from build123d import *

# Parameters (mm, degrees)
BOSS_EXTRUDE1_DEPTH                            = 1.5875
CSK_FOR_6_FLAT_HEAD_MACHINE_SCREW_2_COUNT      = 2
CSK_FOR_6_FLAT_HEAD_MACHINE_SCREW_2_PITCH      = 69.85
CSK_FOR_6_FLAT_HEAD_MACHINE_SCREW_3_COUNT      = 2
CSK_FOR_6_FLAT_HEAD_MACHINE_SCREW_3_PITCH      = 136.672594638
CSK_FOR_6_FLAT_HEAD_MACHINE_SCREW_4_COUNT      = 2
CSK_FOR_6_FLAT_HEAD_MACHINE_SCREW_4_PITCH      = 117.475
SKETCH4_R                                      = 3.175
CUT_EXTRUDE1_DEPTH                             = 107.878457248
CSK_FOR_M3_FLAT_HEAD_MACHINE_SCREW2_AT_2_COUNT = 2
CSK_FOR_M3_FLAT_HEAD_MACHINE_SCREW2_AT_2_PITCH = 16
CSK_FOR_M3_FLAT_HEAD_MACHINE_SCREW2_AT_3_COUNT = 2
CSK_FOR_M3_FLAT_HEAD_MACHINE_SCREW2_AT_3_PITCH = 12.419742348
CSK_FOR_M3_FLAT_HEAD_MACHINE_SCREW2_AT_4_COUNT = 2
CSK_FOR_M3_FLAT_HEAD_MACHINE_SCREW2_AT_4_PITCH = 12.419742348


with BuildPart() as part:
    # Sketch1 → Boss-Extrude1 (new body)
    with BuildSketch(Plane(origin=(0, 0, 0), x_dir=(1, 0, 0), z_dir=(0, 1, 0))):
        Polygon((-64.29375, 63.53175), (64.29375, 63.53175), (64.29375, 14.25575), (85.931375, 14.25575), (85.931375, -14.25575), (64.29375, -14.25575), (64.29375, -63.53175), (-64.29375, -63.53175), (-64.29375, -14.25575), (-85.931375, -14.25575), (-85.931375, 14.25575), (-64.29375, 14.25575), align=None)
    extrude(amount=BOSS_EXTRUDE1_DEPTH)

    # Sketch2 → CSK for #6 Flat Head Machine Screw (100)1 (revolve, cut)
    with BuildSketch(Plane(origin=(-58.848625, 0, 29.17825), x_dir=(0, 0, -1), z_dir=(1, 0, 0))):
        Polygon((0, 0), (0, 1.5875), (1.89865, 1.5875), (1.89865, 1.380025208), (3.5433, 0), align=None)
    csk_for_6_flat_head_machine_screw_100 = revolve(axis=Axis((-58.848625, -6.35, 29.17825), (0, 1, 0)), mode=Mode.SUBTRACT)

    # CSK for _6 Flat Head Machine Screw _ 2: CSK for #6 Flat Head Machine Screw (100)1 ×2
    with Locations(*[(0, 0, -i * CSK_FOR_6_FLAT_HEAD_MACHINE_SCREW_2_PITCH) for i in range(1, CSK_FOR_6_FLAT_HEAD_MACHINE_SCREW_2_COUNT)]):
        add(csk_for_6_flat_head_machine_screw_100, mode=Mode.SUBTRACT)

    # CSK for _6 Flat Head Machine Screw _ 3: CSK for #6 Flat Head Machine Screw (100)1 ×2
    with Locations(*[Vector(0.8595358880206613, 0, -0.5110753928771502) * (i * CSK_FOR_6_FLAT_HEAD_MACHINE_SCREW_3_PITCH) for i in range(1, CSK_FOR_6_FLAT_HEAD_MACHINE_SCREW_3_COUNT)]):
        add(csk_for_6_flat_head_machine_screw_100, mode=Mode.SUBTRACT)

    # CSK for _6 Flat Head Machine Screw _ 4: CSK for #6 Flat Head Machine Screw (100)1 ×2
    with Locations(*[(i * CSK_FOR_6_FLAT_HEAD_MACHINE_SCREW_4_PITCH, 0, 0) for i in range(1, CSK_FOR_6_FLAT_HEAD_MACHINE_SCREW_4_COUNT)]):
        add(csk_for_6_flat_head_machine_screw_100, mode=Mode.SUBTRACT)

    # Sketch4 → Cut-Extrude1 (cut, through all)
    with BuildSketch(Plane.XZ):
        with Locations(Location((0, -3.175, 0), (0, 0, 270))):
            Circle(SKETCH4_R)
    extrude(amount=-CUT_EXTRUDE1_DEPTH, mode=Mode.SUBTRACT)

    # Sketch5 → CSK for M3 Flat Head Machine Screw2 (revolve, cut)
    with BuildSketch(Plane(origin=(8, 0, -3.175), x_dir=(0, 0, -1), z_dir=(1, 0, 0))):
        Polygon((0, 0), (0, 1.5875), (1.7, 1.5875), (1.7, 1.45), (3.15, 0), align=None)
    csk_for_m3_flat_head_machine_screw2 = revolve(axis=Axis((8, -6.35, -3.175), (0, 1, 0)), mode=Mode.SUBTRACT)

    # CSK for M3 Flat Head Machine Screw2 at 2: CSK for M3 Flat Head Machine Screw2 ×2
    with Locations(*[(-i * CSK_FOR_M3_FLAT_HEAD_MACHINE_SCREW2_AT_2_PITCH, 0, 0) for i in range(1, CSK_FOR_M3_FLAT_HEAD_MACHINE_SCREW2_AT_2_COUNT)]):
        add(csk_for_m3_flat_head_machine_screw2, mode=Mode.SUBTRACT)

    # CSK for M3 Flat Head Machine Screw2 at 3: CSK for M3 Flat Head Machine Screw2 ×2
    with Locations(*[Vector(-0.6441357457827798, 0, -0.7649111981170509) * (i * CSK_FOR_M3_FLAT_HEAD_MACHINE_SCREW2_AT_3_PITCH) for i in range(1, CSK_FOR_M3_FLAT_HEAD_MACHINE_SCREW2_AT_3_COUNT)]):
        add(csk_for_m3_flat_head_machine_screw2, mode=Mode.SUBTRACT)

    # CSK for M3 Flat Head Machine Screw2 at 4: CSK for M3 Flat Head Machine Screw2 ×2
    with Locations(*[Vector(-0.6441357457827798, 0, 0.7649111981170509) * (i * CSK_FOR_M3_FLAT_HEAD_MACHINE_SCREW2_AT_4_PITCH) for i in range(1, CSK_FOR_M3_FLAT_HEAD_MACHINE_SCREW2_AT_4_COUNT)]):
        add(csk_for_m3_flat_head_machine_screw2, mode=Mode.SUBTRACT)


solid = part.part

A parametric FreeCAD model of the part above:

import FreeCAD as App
import Part
import Sketcher
from FreeCAD import Vector
Q = App.Units.Quantity

doc = App.newDocument("Part")
body = doc.addObject("PartDesign::Body", "Body")

sketch1 = body.newObject("Sketcher::SketchObject", "Sketch")
sketch1.AttachmentSupport = (doc.getObject("XZ_Plane"), [""])
sketch1.MapMode = "FlatFace"
sketch1.addGeometry(Part.LineSegment(Vector(64, -64, 0), Vector(-64, -64, 0)), False)
sketch1.addGeometry(Part.LineSegment(Vector(-64, -64, 0), Vector(-64, -14, 0)), False)
sketch1.addGeometry(Part.LineSegment(Vector(-64, -14, 0), Vector(-86, -14, 0)), False)
sketch1.addGeometry(Part.LineSegment(Vector(-86, -14, 0), Vector(-86, 14, 0)), False)
sketch1.addGeometry(Part.LineSegment(Vector(-86, 14, 0), Vector(-64, 14, 0)), False)
sketch1.addGeometry(Part.LineSegment(Vector(-64, 14, 0), Vector(-64, 64, 0)), False)
sketch1.addGeometry(Part.LineSegment(Vector(-64, 64, 0), Vector(64, 64, 0)), False)
sketch1.addGeometry(Part.LineSegment(Vector(64, 64, 0), Vector(64, 14, 0)), False)
sketch1.addGeometry(Part.LineSegment(Vector(64, 14, 0), Vector(86, 14, 0)), False)
sketch1.addGeometry(Part.LineSegment(Vector(86, 14, 0), Vector(86, -14, 0)), False)
sketch1.addGeometry(Part.LineSegment(Vector(86, -14, 0), Vector(64, -14, 0)), False)
sketch1.addGeometry(Part.LineSegment(Vector(64, -14, 0), Vector(64, -64, 0)), False)
sketch1.addConstraint(Sketcher.Constraint("Coincident", 0, 2, 1, 1))
sketch1.addConstraint(Sketcher.Constraint("Coincident", 1, 2, 2, 1))
sketch1.addConstraint(Sketcher.Constraint("Coincident", 2, 2, 3, 1))
sketch1.addConstraint(Sketcher.Constraint("Coincident", 3, 2, 4, 1))
sketch1.addConstraint(Sketcher.Constraint("Coincident", 4, 2, 5, 1))
sketch1.addConstraint(Sketcher.Constraint("Coincident", 5, 2, 6, 1))
sketch1.addConstraint(Sketcher.Constraint("Coincident", 6, 2, 7, 1))
sketch1.addConstraint(Sketcher.Constraint("Coincident", 7, 2, 8, 1))
sketch1.addConstraint(Sketcher.Constraint("Coincident", 8, 2, 9, 1))
sketch1.addConstraint(Sketcher.Constraint("Coincident", 9, 2, 10, 1))
sketch1.addConstraint(Sketcher.Constraint("Coincident", 10, 2, 11, 1))
sketch1.addConstraint(Sketcher.Constraint("Coincident", 11, 2, 0, 1))
sketch1.addConstraint(Sketcher.Constraint("Horizontal", 0))
sketch1.addConstraint(Sketcher.Constraint("Vertical", 1))
sketch1.addConstraint(Sketcher.Constraint("Horizontal", 2))
sketch1.addConstraint(Sketcher.Constraint("Vertical", 3))
sketch1.addConstraint(Sketcher.Constraint("Horizontal", 4))
sketch1.addConstraint(Sketcher.Constraint("Vertical", 5))
sketch1.addConstraint(Sketcher.Constraint("Horizontal", 6))
sketch1.addConstraint(Sketcher.Constraint("Vertical", 7))
sketch1.addConstraint(Sketcher.Constraint("Horizontal", 8))
sketch1.addConstraint(Sketcher.Constraint("Vertical", 9))
sketch1.addConstraint(Sketcher.Constraint("Horizontal", 10))
sketch1.addConstraint(Sketcher.Constraint("Vertical", 11))
sketch1.addConstraint(Sketcher.Constraint("Symmetric", 0, 2, 6, 2, -1, 1))
sketch1.addConstraint(Sketcher.Constraint("Symmetric", 2, 2, 8, 2, -1, 1))
sketch1.addConstraint(Sketcher.Constraint("Symmetric", 4, 2, 10, 2, -1, 1))
sketch1.addConstraint(Sketcher.Constraint("Symmetric", 4, 2, 7, 2, -2))
sketch1.addConstraint(Sketcher.Constraint("DistanceY", 1, 1, 1, 2, Q("1.94 in")))
sketch1.addConstraint(Sketcher.Constraint("DistanceX", 0, 2, 0, 1, Q("5.0625 in")))
sketch1.addConstraint(Sketcher.Constraint("DistanceY", 3, 1, 3, 2, Q("1.1225 in")))
sketch1.addConstraint(Sketcher.Constraint("DistanceX", 2, 2, 2, 1, Q("21.637625 mm")))
pad1 = body.newObject("PartDesign::Pad", "Pad")
pad1.Profile = sketch1
pad1.Length = Q("0.0625 in")
pad1.Reversed = True

sketch2 = body.newObject("Sketcher::SketchObject", "Sketch001")
sketch2.AttachmentSupport = (doc.getObject("YZ_Plane"), [""])
sketch2.MapMode = "FlatFace"
sketch2.AttachmentOffset = App.Placement(Vector(0, 0, -58.848625), App.Rotation())
sketch2.addGeometry(Part.LineSegment(Vector(1.59, 29.18, 0), Vector(0, 29.18, 0)), False)
sketch2.addGeometry(Part.LineSegment(Vector(0, 29.18, 0), Vector(0, 25.63, 0)), False)
sketch2.addGeometry(Part.LineSegment(Vector(0, 25.63, 0), Vector(1.38, 27.28, 0)), False)
sketch2.addGeometry(Part.LineSegment(Vector(1.38, 27.28, 0), Vector(1.59, 27.28, 0)), False)
sketch2.addGeometry(Part.LineSegment(Vector(1.59, 27.28, 0), Vector(1.59, 29.18, 0)), False)
sketch2.addGeometry(Part.LineSegment(Vector(0, 29.18, 0), Vector(1.59, 29.18, 0)), True)
sketch2.addConstraint(Sketcher.Constraint("Coincident", 0, 2, 1, 1))
sketch2.addConstraint(Sketcher.Constraint("Coincident", 1, 2, 2, 1))
sketch2.addConstraint(Sketcher.Constraint("Coincident", 2, 2, 3, 1))
sketch2.addConstraint(Sketcher.Constraint("Coincident", 3, 2, 4, 1))
sketch2.addConstraint(Sketcher.Constraint("Coincident", 4, 2, 0, 1))
sketch2.addConstraint(Sketcher.Constraint("Horizontal", 0))
sketch2.addConstraint(Sketcher.Constraint("Vertical", 1))
sketch2.addConstraint(Sketcher.Constraint("Horizontal", 3))
sketch2.addConstraint(Sketcher.Constraint("Vertical", 4))
sketch2.addConstraint(Sketcher.Constraint("Horizontal", 5))
sketch2.addConstraint(Sketcher.Constraint("Coincident", 5, 1, 0, 2))
sketch2.addConstraint(Sketcher.Constraint("PointOnObject", 0, 2, -2))
sketch2.addConstraint(Sketcher.Constraint("Vertical", 3, 2, 5, 2))
sketch2.addConstraint(Sketcher.Constraint("Angle", 2, Q("50 deg")))
sketch2.addConstraint(Sketcher.Constraint("DistanceX", 0, 2, 0, 1, Q("0.0625 in")))
sketch2.addConstraint(Sketcher.Constraint("DistanceY", 1, 2, 1, 1, Q("0.1395 in")))
sketch2.addConstraint(Sketcher.Constraint("DistanceY", -1, 1, 2, 2, Q("1.074 in")))
sketch2.addConstraint(Sketcher.Constraint("DistanceY", 4, 1, 4, 2, Q("1.89865 mm")))
groove = body.newObject("PartDesign::Groove", "Groove")
groove.Profile = sketch2
groove.ReferenceAxis = (sketch2, ["Axis0"])
groove.Angle = 360
doc.recompute()

linearpattern = body.newObject("PartDesign::LinearPattern", "LinearPattern")
linearpattern.Originals = [groove]
linearpattern.Direction = (doc.getObject("Z_Axis"), [""])
linearpattern.Mode = "offset"
linearpattern.Offset = Q("2.75 in")
linearpattern.Occurrences = 2
linearpattern.Reversed = True
body.Tip = linearpattern
doc.recompute()

datumline = body.newObject("PartDesign::Line", "DatumLine")
datumline.Placement = App.Placement(Vector(0, 0, 0), App.Rotation(Vector(0, 0, 1), Vector(0.859535888, 0, -0.511075393)))
linearpattern2 = body.newObject("PartDesign::LinearPattern", "LinearPattern001")
linearpattern2.Originals = [groove]
linearpattern2.Direction = (datumline, [""])
linearpattern2.Mode = "offset"
linearpattern2.Offset = 136.672595
linearpattern2.Occurrences = 2
body.Tip = linearpattern2
doc.recompute()

linearpattern3 = body.newObject("PartDesign::LinearPattern", "LinearPattern002")
linearpattern3.Originals = [groove]
linearpattern3.Direction = (doc.getObject("X_Axis"), [""])
linearpattern3.Mode = "offset"
linearpattern3.Offset = Q("4.625 in")
linearpattern3.Occurrences = 2
body.Tip = linearpattern3

sketch3 = body.newObject("Sketcher::SketchObject", "Sketch002")
sketch3.AttachmentSupport = (doc.getObject("XZ_Plane"), [""])
sketch3.MapMode = "FlatFace"
sketch3.addGeometry(Part.Circle(Vector(0, -3.2, 0), Vector(0, 0, 1), 3.2), False)
sketch3.addConstraint(Sketcher.Constraint("PointOnObject", 0, 3, -2))
sketch3.addConstraint(Sketcher.Constraint("Diameter", 0, Q("0.25 in")))
sketch3.addConstraint(Sketcher.Constraint("DistanceY", 0, 3, -1, 1, Q("0.125 in")))
pocket1 = body.newObject("PartDesign::Pocket", "Pocket")
pocket1.Profile = sketch3
pocket1.Type = "ThroughAll"

sketch4 = body.newObject("Sketcher::SketchObject", "Sketch003")
sketch4.AttachmentSupport = (doc.getObject("YZ_Plane"), [""])
sketch4.MapMode = "FlatFace"
sketch4.AttachmentOffset = App.Placement(Vector(0, 0, 8), App.Rotation())
sketch4.addGeometry(Part.LineSegment(Vector(1.59, -3.17, 0), Vector(0, -3.17, 0)), False)
sketch4.addGeometry(Part.LineSegment(Vector(0, -3.17, 0), Vector(0, -6.33, 0)), False)
sketch4.addGeometry(Part.LineSegment(Vector(0, -6.33, 0), Vector(1.45, -4.88, 0)), False)
sketch4.addGeometry(Part.LineSegment(Vector(1.45, -4.88, 0), Vector(1.59, -4.88, 0)), False)
sketch4.addGeometry(Part.LineSegment(Vector(1.59, -4.88, 0), Vector(1.59, -3.17, 0)), False)
sketch4.addGeometry(Part.LineSegment(Vector(0, -3.17, 0), Vector(1.59, -3.17, 0)), True)
sketch4.addConstraint(Sketcher.Constraint("Coincident", 0, 2, 1, 1))
sketch4.addConstraint(Sketcher.Constraint("Coincident", 1, 2, 2, 1))
sketch4.addConstraint(Sketcher.Constraint("Coincident", 2, 2, 3, 1))
sketch4.addConstraint(Sketcher.Constraint("Coincident", 3, 2, 4, 1))
sketch4.addConstraint(Sketcher.Constraint("Coincident", 4, 2, 0, 1))
sketch4.addConstraint(Sketcher.Constraint("Horizontal", 0))
sketch4.addConstraint(Sketcher.Constraint("Vertical", 1))
sketch4.addConstraint(Sketcher.Constraint("Horizontal", 3))
sketch4.addConstraint(Sketcher.Constraint("Vertical", 4))
sketch4.addConstraint(Sketcher.Constraint("Horizontal", 5))
sketch4.addConstraint(Sketcher.Constraint("Coincident", 5, 1, 0, 2))
sketch4.addConstraint(Sketcher.Constraint("PointOnObject", 0, 2, -2))
sketch4.addConstraint(Sketcher.Constraint("Vertical", 3, 2, 5, 2))
sketch4.addConstraint(Sketcher.Constraint("Angle", 2, Q("45 deg")))
sketch4.addConstraint(Sketcher.Constraint("DistanceX", 0, 2, 0, 1, Q("0.0625 in")))
sketch4.addConstraint(Sketcher.Constraint("DistanceY", 0, 2, -1, 1, Q("0.125 in")))
sketch4.addConstraint(Sketcher.Constraint("DistanceX", 3, 1, 3, 2, Q("0.1375 mm")))
sketch4.addConstraint(Sketcher.Constraint("DistanceY", 1, 2, 1, 1, Q("3.15 mm")))
groove2 = body.newObject("PartDesign::Groove", "Groove001")
groove2.Profile = sketch4
groove2.ReferenceAxis = (sketch4, ["Axis0"])
groove2.Angle = 360
doc.recompute()

linearpattern4 = body.newObject("PartDesign::LinearPattern", "LinearPattern003")
linearpattern4.Originals = [groove2]
linearpattern4.Direction = (doc.getObject("X_Axis"), [""])
linearpattern4.Mode = "offset"
linearpattern4.Offset = 16
linearpattern4.Occurrences = 2
linearpattern4.Reversed = True
body.Tip = linearpattern4
doc.recompute()

datumline2 = body.newObject("PartDesign::Line", "DatumLine001")
datumline2.Placement = App.Placement(Vector(0, 0, 0), App.Rotation(Vector(0, 0, 1), Vector(-0.644135746, 0, -0.764911198)))
linearpattern5 = body.newObject("PartDesign::LinearPattern", "LinearPattern004")
linearpattern5.Originals = [groove2]
linearpattern5.Direction = (datumline2, [""])
linearpattern5.Mode = "offset"
linearpattern5.Offset = 12.419742
linearpattern5.Occurrences = 2
body.Tip = linearpattern5
doc.recompute()

datumline3 = body.newObject("PartDesign::Line", "DatumLine002")
datumline3.Placement = App.Placement(Vector(0, 0, 0), App.Rotation(Vector(0, 0, 1), Vector(-0.644135746, 0, 0.764911198)))
linearpattern6 = body.newObject("PartDesign::LinearPattern", "LinearPattern005")
linearpattern6.Originals = [groove2]
linearpattern6.Direction = (datumline3, [""])
linearpattern6.Mode = "offset"
linearpattern6.Offset = 12.419742
linearpattern6.Occurrences = 2
body.Tip = linearpattern6

doc.recompute()
